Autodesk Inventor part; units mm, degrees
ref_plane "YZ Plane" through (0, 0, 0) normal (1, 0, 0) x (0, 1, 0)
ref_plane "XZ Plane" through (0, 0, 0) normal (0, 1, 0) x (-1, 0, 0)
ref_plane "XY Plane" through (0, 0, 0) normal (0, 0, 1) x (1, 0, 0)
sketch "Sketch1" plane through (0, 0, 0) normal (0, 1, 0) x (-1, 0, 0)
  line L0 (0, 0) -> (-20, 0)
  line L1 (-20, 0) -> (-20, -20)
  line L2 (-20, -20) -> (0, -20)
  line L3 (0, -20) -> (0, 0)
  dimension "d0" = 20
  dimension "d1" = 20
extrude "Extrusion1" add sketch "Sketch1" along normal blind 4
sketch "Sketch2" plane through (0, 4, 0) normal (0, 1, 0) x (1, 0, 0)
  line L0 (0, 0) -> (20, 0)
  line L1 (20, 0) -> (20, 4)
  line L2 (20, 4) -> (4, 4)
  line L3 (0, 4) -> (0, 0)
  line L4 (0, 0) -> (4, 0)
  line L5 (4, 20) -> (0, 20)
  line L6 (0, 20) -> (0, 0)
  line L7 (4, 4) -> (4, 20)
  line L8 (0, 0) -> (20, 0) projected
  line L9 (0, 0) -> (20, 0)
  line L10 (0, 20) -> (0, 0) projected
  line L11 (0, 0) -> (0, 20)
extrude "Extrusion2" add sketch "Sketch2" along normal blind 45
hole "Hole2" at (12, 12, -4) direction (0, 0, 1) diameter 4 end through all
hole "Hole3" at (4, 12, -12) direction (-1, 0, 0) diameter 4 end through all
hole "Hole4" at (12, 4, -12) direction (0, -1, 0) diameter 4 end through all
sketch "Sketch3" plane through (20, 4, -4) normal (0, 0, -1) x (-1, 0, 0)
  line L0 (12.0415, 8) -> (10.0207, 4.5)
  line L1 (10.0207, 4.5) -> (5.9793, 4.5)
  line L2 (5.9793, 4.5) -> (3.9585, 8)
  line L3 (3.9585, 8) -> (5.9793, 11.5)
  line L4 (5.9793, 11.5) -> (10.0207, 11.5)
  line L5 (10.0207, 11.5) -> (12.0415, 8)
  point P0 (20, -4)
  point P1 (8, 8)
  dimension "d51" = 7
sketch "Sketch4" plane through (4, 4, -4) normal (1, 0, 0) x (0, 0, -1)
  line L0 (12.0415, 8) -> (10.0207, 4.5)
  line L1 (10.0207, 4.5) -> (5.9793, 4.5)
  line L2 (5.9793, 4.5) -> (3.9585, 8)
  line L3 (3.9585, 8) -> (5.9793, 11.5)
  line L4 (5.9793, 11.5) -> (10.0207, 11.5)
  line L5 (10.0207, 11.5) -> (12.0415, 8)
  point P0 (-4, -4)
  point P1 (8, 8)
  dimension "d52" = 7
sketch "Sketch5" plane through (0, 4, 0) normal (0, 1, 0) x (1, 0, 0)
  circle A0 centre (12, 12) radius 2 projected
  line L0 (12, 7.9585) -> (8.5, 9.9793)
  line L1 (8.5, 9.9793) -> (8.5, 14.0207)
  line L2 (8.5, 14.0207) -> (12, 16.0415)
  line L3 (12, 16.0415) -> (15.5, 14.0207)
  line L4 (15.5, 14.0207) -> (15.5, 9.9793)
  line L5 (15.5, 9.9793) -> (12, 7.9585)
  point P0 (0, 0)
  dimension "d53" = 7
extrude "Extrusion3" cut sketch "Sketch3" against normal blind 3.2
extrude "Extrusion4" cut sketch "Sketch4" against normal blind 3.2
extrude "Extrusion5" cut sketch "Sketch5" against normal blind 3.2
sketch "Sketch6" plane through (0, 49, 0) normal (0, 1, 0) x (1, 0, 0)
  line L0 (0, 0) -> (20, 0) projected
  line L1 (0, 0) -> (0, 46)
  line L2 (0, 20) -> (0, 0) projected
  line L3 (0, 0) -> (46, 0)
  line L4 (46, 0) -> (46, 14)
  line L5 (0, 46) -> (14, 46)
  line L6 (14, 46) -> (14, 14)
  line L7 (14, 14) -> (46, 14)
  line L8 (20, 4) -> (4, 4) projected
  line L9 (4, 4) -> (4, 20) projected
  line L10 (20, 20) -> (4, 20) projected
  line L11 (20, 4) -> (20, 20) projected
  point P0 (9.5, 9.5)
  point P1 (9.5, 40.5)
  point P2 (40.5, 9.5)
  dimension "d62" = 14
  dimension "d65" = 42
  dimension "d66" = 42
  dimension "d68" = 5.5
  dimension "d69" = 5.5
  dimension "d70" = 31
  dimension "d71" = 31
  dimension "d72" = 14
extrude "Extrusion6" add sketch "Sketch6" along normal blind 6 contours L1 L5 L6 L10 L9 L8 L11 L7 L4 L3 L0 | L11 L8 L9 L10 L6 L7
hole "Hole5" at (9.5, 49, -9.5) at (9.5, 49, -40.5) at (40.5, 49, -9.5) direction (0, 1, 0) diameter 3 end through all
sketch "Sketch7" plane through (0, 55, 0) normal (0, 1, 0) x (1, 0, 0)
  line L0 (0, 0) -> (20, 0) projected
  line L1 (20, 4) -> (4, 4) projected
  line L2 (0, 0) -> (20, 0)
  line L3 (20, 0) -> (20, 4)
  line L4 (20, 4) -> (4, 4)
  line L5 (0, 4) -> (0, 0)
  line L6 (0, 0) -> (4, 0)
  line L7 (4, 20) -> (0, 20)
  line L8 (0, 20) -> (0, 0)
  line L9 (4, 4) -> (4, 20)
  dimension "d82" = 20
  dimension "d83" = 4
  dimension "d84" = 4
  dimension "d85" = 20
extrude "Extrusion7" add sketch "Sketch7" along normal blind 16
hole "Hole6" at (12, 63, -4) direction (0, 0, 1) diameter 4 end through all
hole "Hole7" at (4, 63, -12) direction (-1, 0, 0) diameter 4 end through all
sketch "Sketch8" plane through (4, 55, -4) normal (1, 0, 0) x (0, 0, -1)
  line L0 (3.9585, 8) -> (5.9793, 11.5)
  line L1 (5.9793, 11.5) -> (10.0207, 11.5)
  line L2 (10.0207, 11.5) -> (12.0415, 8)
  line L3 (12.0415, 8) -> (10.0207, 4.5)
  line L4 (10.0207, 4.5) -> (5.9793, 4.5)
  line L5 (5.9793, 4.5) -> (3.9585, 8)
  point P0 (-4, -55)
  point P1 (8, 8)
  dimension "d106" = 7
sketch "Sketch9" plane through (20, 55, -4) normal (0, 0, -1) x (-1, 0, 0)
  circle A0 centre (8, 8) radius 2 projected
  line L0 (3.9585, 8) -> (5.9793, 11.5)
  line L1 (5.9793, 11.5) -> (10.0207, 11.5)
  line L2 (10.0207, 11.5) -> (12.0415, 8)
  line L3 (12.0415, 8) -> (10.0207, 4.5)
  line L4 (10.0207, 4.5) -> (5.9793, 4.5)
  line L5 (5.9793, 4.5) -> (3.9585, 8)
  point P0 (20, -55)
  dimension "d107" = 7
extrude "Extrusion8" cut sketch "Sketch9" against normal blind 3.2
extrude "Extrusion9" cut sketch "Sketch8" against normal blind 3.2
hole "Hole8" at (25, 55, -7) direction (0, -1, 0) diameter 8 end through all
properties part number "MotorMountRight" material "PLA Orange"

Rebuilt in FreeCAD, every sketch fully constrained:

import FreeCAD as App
import Part
import Sketcher

V = App.Vector
Q = App.Units.Quantity


def add_polygon(sketch, points):
    """Adds a closed chain of lines whose ends are joined by coincident constraints."""
    first, n = sketch.GeometryCount, len(points)
    for a, b in zip(points, points[1:] + points[:1]):
        sketch.addGeometry(Part.LineSegment(App.Vector(*a, 0), App.Vector(*b, 0)), False)
    for i in range(n):
        sketch.addConstraint(Sketcher.Constraint("Coincident", first + i, 2, first + (i + 1) % n, 1))

doc = App.newDocument("Part")
body = doc.addObject("PartDesign::Body", "Body")

# Sketch on XZ plane
sketch1 = doc.addObject("Sketcher::SketchObject", "Sketch")
body.addObject(sketch1)
sketch1.AttachmentSupport = (doc.XZ_Plane, [""])
sketch1.MapMode = "FlatFace"
add_polygon(sketch1, [(0, -20), (0, 0), (20, 0), (20, -20)])  # lines 0-3
sketch1.addConstraint(Sketcher.Constraint("Vertical", 0))
sketch1.addConstraint(Sketcher.Constraint("Horizontal", 1))
sketch1.addConstraint(Sketcher.Constraint("Vertical", 2))
sketch1.addConstraint(Sketcher.Constraint("Horizontal", 3))
sketch1.addConstraint(Sketcher.Constraint("Coincident", 0, 2, -1, 1))
sketch1.addConstraint(Sketcher.Constraint("Equal", 3, 0))
sketch1.addConstraint(Sketcher.Constraint("DistanceX", 1, 1, 1, 2, Q("20 mm")))
pad1 = doc.addObject("PartDesign::Pad", "Pad")
body.addObject(pad1)
pad1.Profile = sketch1
pad1.Length = 4
pad1.Reversed = True

# Sketch on XZ plane
sketch2 = doc.addObject("Sketcher::SketchObject", "Sketch001")
body.addObject(sketch2)
sketch2.AttachmentSupport = (doc.XZ_Plane, [""])
sketch2.MapMode = "FlatFace"
sketch2.AttachmentOffset = App.Placement(V(0, 0, -4), App.Rotation())
add_polygon(sketch2, [(0, -20), (0, 0), (20, 0), (20, -4), (4, -4), (4, -20)])  # lines 0-5
sketch2.addConstraint(Sketcher.Constraint("Vertical", 0))
sketch2.addConstraint(Sketcher.Constraint("Horizontal", 1))
sketch2.addConstraint(Sketcher.Constraint("Vertical", 2))
sketch2.addConstraint(Sketcher.Constraint("Horizontal", 3))
sketch2.addConstraint(Sketcher.Constraint("Vertical", 4))
sketch2.addConstraint(Sketcher.Constraint("Horizontal", 5))
sketch2.addConstraint(Sketcher.Constraint("Coincident", 0, 2, -1, 1))
sketch2.addConstraint(Sketcher.Constraint("Equal", 1, 0))
sketch2.addConstraint(Sketcher.Constraint("Equal", 5, 2))
sketch2.addConstraint(Sketcher.Constraint("DistanceX", 1, 1, 1, 2, Q("20 mm")))
sketch2.addConstraint(Sketcher.Constraint("DistanceX", 3, 2, 3, 1, Q("16 mm")))
pad2 = doc.addObject("PartDesign::Pad", "Pad001")
body.addObject(pad2)
pad2.Profile = sketch2
pad2.Length = 45
pad2.Reversed = True

# Sketch on XY plane
sketch3 = doc.addObject("Sketcher::SketchObject", "Sketch002")
body.addObject(sketch3)
sketch3.AttachmentSupport = (doc.XY_Plane, [""])
sketch3.MapMode = "FlatFace"
sketch3.AttachmentOffset = App.Placement(V(0, 0, -4), App.Rotation())
sketch3.addGeometry(Part.Circle(V(12, 12, 0), V(0, 0, 1), 2), False)
sketch3.addConstraint(Sketcher.Constraint("Diameter", 0, Q("4 mm")))
sketch3.addConstraint(Sketcher.Constraint("DistanceX", -1, 1, 0, 3, Q("12 mm")))
sketch3.addConstraint(Sketcher.Constraint("DistanceY", -1, 1, 0, 3, Q("12 mm")))
doc.recompute()
hole = doc.addObject("PartDesign::Hole", "Hole")
body.addObject(hole)
hole.Profile = sketch3
hole.ThreadType = "None"
hole.Diameter = 4
hole.DepthType = "ThroughAll"
hole.Reversed = True

# Sketch on YZ plane
sketch4 = doc.addObject("Sketcher::SketchObject", "Sketch003")
body.addObject(sketch4)
sketch4.AttachmentSupport = (doc.YZ_Plane, [""])
sketch4.MapMode = "FlatFace"
sketch4.AttachmentOffset = App.Placement(V(0, 0, 4), App.Rotation())
sketch4.addGeometry(Part.Circle(V(12, -12, 0), V(0, 0, 1), 2), False)
sketch4.addConstraint(Sketcher.Constraint("Diameter", 0, Q("4 mm")))
sketch4.addConstraint(Sketcher.Constraint("DistanceX", -1, 1, 0, 3, Q("12 mm")))
sketch4.addConstraint(Sketcher.Constraint("DistanceY", 0, 3, -1, 1, Q("12 mm")))
doc.recompute()
hole2 = doc.addObject("PartDesign::Hole", "Hole001")
body.addObject(hole2)
hole2.Profile = sketch4
hole2.ThreadType = "None"
hole2.Diameter = 4
hole2.DepthType = "ThroughAll"

# Sketch on XZ plane
sketch5 = doc.addObject("Sketcher::SketchObject", "Sketch004")
body.addObject(sketch5)
sketch5.AttachmentSupport = (doc.XZ_Plane, [""])
sketch5.MapMode = "FlatFace"
sketch5.AttachmentOffset = App.Placement(V(0, 0, -4), App.Rotation())
sketch5.addGeometry(Part.Circle(V(12, -12, 0), V(0, 0, 1), 2), False)
sketch5.addConstraint(Sketcher.Constraint("Diameter", 0, Q("4 mm")))
sketch5.addConstraint(Sketcher.Constraint("DistanceX", -1, 1, 0, 3, Q("12 mm")))
sketch5.addConstraint(Sketcher.Constraint("DistanceY", 0, 3, -1, 1, Q("12 mm")))
doc.recompute()
hole3 = doc.addObject("PartDesign::Hole", "Hole002")
body.addObject(hole3)
hole3.Profile = sketch5
hole3.ThreadType = "None"
hole3.Diameter = 4
hole3.DepthType = "ThroughAll"
hole3.Reversed = True

# Sketch on XY plane
sketch6 = doc.addObject("Sketcher::SketchObject", "Sketch005")
body.addObject(sketch6)
sketch6.AttachmentSupport = (doc.XY_Plane, [""])
sketch6.MapMode = "FlatFace"
sketch6.AttachmentOffset = App.Placement(V(0, 0, -4), App.Rotation())
add_polygon(sketch6, [(10, 8.5), (8, 12), (10, 15.5), (14, 15.5), (16, 12), (14, 8.5)])  # lines 0-5
sketch6.addConstraint(Sketcher.Constraint("Horizontal", 2))
sketch6.addConstraint(Sketcher.Constraint("Horizontal", 5))
sketch6.addConstraint(Sketcher.Constraint("Parallel", 0, 3))
sketch6.addConstraint(Sketcher.Constraint("Parallel", 1, 4))
sketch6.addConstraint(Sketcher.Constraint("Horizontal", 0, 2, 3, 2))
sketch6.addConstraint(Sketcher.Constraint("Vertical", 2, 2, 4, 2))
sketch6.addConstraint(Sketcher.Constraint("Vertical", 1, 2, 5, 2))
sketch6.addConstraint(Sketcher.Constraint("DistanceY", 4, 2, 2, 2, Q("7 mm")))
sketch6.addConstraint(Sketcher.Constraint("Angle", 0, Q("120.001 deg")))
sketch6.addConstraint(Sketcher.Constraint("DistanceY", -1, 1, 0, 2, Q("12 mm")))
sketch6.addConstraint(Sketcher.Constraint("DistanceX", 2, 1, 2, 2, Q("4.0414 mm")))
sketch6.addConstraint(Sketcher.Constraint("DistanceX", -1, 1, 0, 2, Q("7.9585 mm")))
pocket1 = doc.addObject("PartDesign::Pocket", "Pocket")
body.addObject(pocket1)
pocket1.Profile = sketch6
pocket1.Length = 3.2
pocket1.Reversed = True

# Sketch on YZ plane
sketch7 = doc.addObject("Sketcher::SketchObject", "Sketch006")
body.addObject(sketch7)
sketch7.AttachmentSupport = (doc.YZ_Plane, [""])
sketch7.MapMode = "FlatFace"
sketch7.AttachmentOffset = App.Placement(V(0, 0, 4), App.Rotation())
add_polygon(sketch7, [(8.5, -14), (12, -16), (15.5, -14), (15.5, -10), (12, -8), (8.5, -10)])  # lines 0-5
sketch7.addConstraint(Sketcher.Constraint("Vertical", 2))
sketch7.addConstraint(Sketcher.Constraint("Vertical", 5))
sketch7.addConstraint(Sketcher.Constraint("Parallel", 0, 3))
sketch7.addConstraint(Sketcher.Constraint("Parallel", 1, 4))
sketch7.addConstraint(Sketcher.Constraint("Horizontal", 2, 2, 4, 2))
sketch7.addConstraint(Sketcher.Constraint("Horizontal", 1, 2, 5, 2))
sketch7.addConstraint(Sketcher.Constraint("Vertical", 0, 2, 3, 2))
sketch7.addConstraint(Sketcher.Constraint("DistanceX", 4, 2, 2, 2, Q("7 mm")))
sketch7.addConstraint(Sketcher.Constraint("Angle", 0, Q("-30.001 deg")))
sketch7.addConstraint(Sketcher.Constraint("DistanceX", -1, 1, 0, 2, Q("12 mm")))
sketch7.addConstraint(Sketcher.Constraint("DistanceY", 2, 1, 2, 2, Q("4.0414 mm")))
sketch7.addConstraint(Sketcher.Constraint("DistanceY", 0, 2, -1, 1, Q("16.0415 mm")))
pocket2 = doc.addObject("PartDesign::Pocket", "Pocket001")
body.addObject(pocket2)
pocket2.Profile = sketch7
pocket2.Length = 3.2

# Sketch on XZ plane
sketch8 = doc.addObject("Sketcher::SketchObject", "Sketch007")
body.addObject(sketch8)
sketch8.AttachmentSupport = (doc.XZ_Plane, [""])
sketch8.MapMode = "FlatFace"
sketch8.AttachmentOffset = App.Placement(V(0, 0, -4), App.Rotation())
add_polygon(sketch8, [(8.5, -10), (12, -8), (15.5, -10), (15.5, -14), (12, -16), (8.5, -14)])  # lines 0-5
sketch8.addGeometry(Part.Circle(V(12, -12, 0), V(0, 0, 1), 2), False)  # 6
sketch8.addConstraint(Sketcher.Constraint("Vertical", 2))
sketch8.addConstraint(Sketcher.Constraint("Vertical", 5))
sketch8.addConstraint(Sketcher.Constraint("Parallel", 0, 3))
sketch8.addConstraint(Sketcher.Constraint("Parallel", 1, 4))
sketch8.addConstraint(Sketcher.Constraint("Horizontal", 2, 2, 4, 2))
sketch8.addConstraint(Sketcher.Constraint("Horizontal", 1, 2, 5, 2))
sketch8.addConstraint(Sketcher.Constraint("Vertical", 6, 3, 0, 2))
sketch8.addConstraint(Sketcher.Constraint("Vertical", 0, 2, 3, 2))
sketch8.addConstraint(Sketcher.Constraint("Diameter", 6, Q("4 mm")))
sketch8.addConstraint(Sketcher.Constraint("DistanceX", 4, 2, 2, 2, Q("7 mm")))
sketch8.addConstraint(Sketcher.Constraint("Angle", 0, Q("30.001 deg")))
sketch8.addConstraint(Sketcher.Constraint("DistanceX", -1, 1, 6, 3, Q("12 mm")))
sketch8.addConstraint(Sketcher.Constraint("DistanceY", 6, 3, -1, 1, Q("12 mm")))
sketch8.addConstraint(Sketcher.Constraint("DistanceY", 2, 2, 2, 1, Q("4.0414 mm")))
sketch8.addConstraint(Sketcher.Constraint("DistanceY", 0, 2, -1, 1, Q("7.9585 mm")))
pocket3 = doc.addObject("PartDesign::Pocket", "Pocket002")
body.addObject(pocket3)
pocket3.Profile = sketch8
pocket3.Length = 3.2
pocket3.Reversed = True

# Sketch on XZ plane
sketch9 = doc.addObject("Sketcher::SketchObject", "Sketch008")
body.addObject(sketch9)
sketch9.AttachmentSupport = (doc.XZ_Plane, [""])
sketch9.MapMode = "FlatFace"
sketch9.AttachmentOffset = App.Placement(V(0, 0, -49), App.Rotation())
add_polygon(sketch9, [(0, 0), (46, 0), (46, -14), (14, -14), (14, -46), (0, -46)])  # lines 0-5
sketch9.addConstraint(Sketcher.Constraint("Horizontal", 0))
sketch9.addConstraint(Sketcher.Constraint("Vertical", 1))
sketch9.addConstraint(Sketcher.Constraint("Horizontal", 2))
sketch9.addConstraint(Sketcher.Constraint("Vertical", 3))
sketch9.addConstraint(Sketcher.Constraint("Horizontal", 4))
sketch9.addConstraint(Sketcher.Constraint("Vertical", 5))
sketch9.addConstraint(Sketcher.Constraint("Coincident", 5, 2, -1, 1))
sketch9.addConstraint(Sketcher.Constraint("Equal", 4, 1))
sketch9.addConstraint(Sketcher.Constraint("Equal", 2, 3))
sketch9.addConstraint(Sketcher.Constraint("DistanceX", 4, 2, 4, 1, Q("14 mm")))
sketch9.addConstraint(Sketcher.Constraint("DistanceX", 0, 1, 0, 2, Q("46 mm")))
pad3 = doc.addObject("PartDesign::Pad", "Pad002")
body.addObject(pad3)
pad3.Profile = sketch9
pad3.Length = 6
pad3.Reversed = True

# Sketch on XZ plane
sketch10 = doc.addObject("Sketcher::SketchObject", "Sketch009")
body.addObject(sketch10)
sketch10.AttachmentSupport = (doc.XZ_Plane, [""])
sketch10.MapMode = "FlatFace"
sketch10.AttachmentOffset = App.Placement(V(0, 0, -49), App.Rotation())
sketch10.addGeometry(Part.Circle(V(9.5, -9.5, 0), V(0, 0, 1), 1.5), False)
sketch10.addGeometry(Part.Circle(V(9.5, -40.5, 0), V(0, 0, 1), 1.5), False)
sketch10.addGeometry(Part.Circle(V(40.5, -9.5, 0), V(0, 0, 1), 1.5), False)
sketch10.addConstraint(Sketcher.Constraint("Equal", 0, 1))
sketch10.addConstraint(Sketcher.Constraint("Equal", 1, 2))
sketch10.addConstraint(Sketcher.Constraint("Horizontal", 0, 3, 2, 3))
sketch10.addConstraint(Sketcher.Constraint("Vertical", 0, 3, 1, 3))
sketch10.addConstraint(Sketcher.Constraint("Diameter", 0, Q("3 mm")))
sketch10.addConstraint(Sketcher.Constraint("DistanceY", 1, 3, 0, 3, Q("31 mm")))
sketch10.addConstraint(Sketcher.Constraint("DistanceX", 0, 3, 2, 3, Q("31 mm")))
sketch10.addConstraint(Sketcher.Constraint("DistanceX", -1, 1, 0, 3, Q("9.5 mm")))
sketch10.addConstraint(Sketcher.Constraint("DistanceY", 0, 3, -1, 1, Q("9.5 mm")))
doc.recompute()
hole4 = doc.addObject("PartDesign::Hole", "Hole003")
body.addObject(hole4)
hole4.Profile = sketch10
hole4.ThreadType = "None"
hole4.Diameter = 3
hole4.DepthType = "ThroughAll"

# Sketch on XZ plane
sketch11 = doc.addObject("Sketcher::SketchObject", "Sketch010")
body.addObject(sketch11)
sketch11.AttachmentSupport = (doc.XZ_Plane, [""])
sketch11.MapMode = "FlatFace"
sketch11.AttachmentOffset = App.Placement(V(0, 0, -55), App.Rotation())
add_polygon(sketch11, [(0, -20), (0, 0), (20, 0), (20, -4), (4, -4), (4, -20)])  # lines 0-5
sketch11.addConstraint(Sketcher.Constraint("Vertical", 0))
sketch11.addConstraint(Sketcher.Constraint("Horizontal", 1))
sketch11.addConstraint(Sketcher.Constraint("Vertical", 2))
sketch11.addConstraint(Sketcher.Constraint("Horizontal", 3))
sketch11.addConstraint(Sketcher.Constraint("Vertical", 4))
sketch11.addConstraint(Sketcher.Constraint("Horizontal", 5))
sketch11.addConstraint(Sketcher.Constraint("Coincident", 0, 2, -1, 1))
sketch11.addConstraint(Sketcher.Constraint("Equal", 1, 0))
sketch11.addConstraint(Sketcher.Constraint("Equal", 5, 2))
sketch11.addConstraint(Sketcher.Constraint("DistanceX", 1, 1, 1, 2, Q("20 mm")))
sketch11.addConstraint(Sketcher.Constraint("DistanceX", 5, 2, 5, 1, Q("4 mm")))
pad4 = doc.addObject("PartDesign::Pad", "Pad003")
body.addObject(pad4)
pad4.Profile = sketch11
pad4.Length = 16
pad4.Reversed = True

# Sketch on XY plane
sketch12 = doc.addObject("Sketcher::SketchObject", "Sketch011")
body.addObject(sketch12)
sketch12.AttachmentSupport = (doc.XY_Plane, [""])
sketch12.MapMode = "FlatFace"
sketch12.AttachmentOffset = App.Placement(V(0, 0, -4), App.Rotation())
sketch12.addGeometry(Part.Circle(V(12, 63, 0), V(0, 0, 1), 2), False)
sketch12.addConstraint(Sketcher.Constraint("Diameter", 0, Q("4 mm")))
sketch12.addConstraint(Sketcher.Constraint("DistanceX", -1, 1, 0, 3, Q("12 mm")))
sketch12.addConstraint(Sketcher.Constraint("DistanceY", -1, 1, 0, 3, Q("63 mm")))
doc.recompute()
hole5 = doc.addObject("PartDesign::Hole", "Hole004")
body.addObject(hole5)
hole5.Profile = sketch12
hole5.ThreadType = "None"
hole5.Diameter = 4
hole5.DepthType = "ThroughAll"
hole5.Reversed = True

# Sketch on YZ plane
sketch13 = doc.addObject("Sketcher::SketchObject", "Sketch012")
body.addObject(sketch13)
sketch13.AttachmentSupport = (doc.YZ_Plane, [""])
sketch13.MapMode = "FlatFace"
sketch13.AttachmentOffset = App.Placement(V(0, 0, 4), App.Rotation())
sketch13.addGeometry(Part.Circle(V(63, -12, 0), V(0, 0, 1), 2), False)
sketch13.addConstraint(Sketcher.Constraint("Diameter", 0, Q("4 mm")))
sketch13.addConstraint(Sketcher.Constraint("DistanceX", -1, 1, 0, 3, Q("63 mm")))
sketch13.addConstraint(Sketcher.Constraint("DistanceY", 0, 3, -1, 1, Q("12 mm")))
doc.recompute()
hole6 = doc.addObject("PartDesign::Hole", "Hole005")
body.addObject(hole6)
hole6.Profile = sketch13
hole6.ThreadType = "None"
hole6.Diameter = 4
hole6.DepthType = "ThroughAll"

# Sketch on XY plane
sketch14 = doc.addObject("Sketcher::SketchObject", "Sketch013")
body.addObject(sketch14)
sketch14.AttachmentSupport = (doc.XY_Plane, [""])
sketch14.MapMode = "FlatFace"
sketch14.AttachmentOffset = App.Placement(V(0, 0, -4), App.Rotation())
add_polygon(sketch14, [(14, 66.5), (16, 63), (14, 59.5), (10, 59.5), (8, 63), (10, 66.5)])  # lines 0-5
sketch14.addGeometry(Part.Circle(V(12, 63, 0), V(0, 0, 1), 2), False)  # 6
sketch14.addConstraint(Sketcher.Constraint("Horizontal", 2))
sketch14.addConstraint(Sketcher.Constraint("Horizontal", 5))
sketch14.addConstraint(Sketcher.Constraint("Parallel", 0, 3))
sketch14.addConstraint(Sketcher.Constraint("Parallel", 1, 4))
sketch14.addConstraint(Sketcher.Constraint("Horizontal", 6, 3, 0, 2))
sketch14.addConstraint(Sketcher.Constraint("Horizontal", 0, 2, 3, 2))
sketch14.addConstraint(Sketcher.Constraint("Vertical", 2, 2, 4, 2))
sketch14.addConstraint(Sketcher.Constraint("Vertical", 1, 2, 5, 2))
sketch14.addConstraint(Sketcher.Constraint("Diameter", 6, Q("4 mm")))
sketch14.addConstraint(Sketcher.Constraint("DistanceY", 2, 2, 4, 2, Q("7 mm")))
sketch14.addConstraint(Sketcher.Constraint("Angle", 0, Q("-59.999 deg")))
sketch14.addConstraint(Sketcher.Constraint("DistanceX", -1, 1, 6, 3, Q("12 mm")))
sketch14.addConstraint(Sketcher.Constraint("DistanceY", -1, 1, 6, 3, Q("63 mm")))
sketch14.addConstraint(Sketcher.Constraint("DistanceX", 2, 2, 2, 1, Q("4.0414 mm")))
sketch14.addConstraint(Sketcher.Constraint("DistanceX", -1, 1, 0, 2, Q("16.0415 mm")))
pocket4 = doc.addObject("PartDesign::Pocket", "Pocket003")
body.addObject(pocket4)
pocket4.Profile = sketch14
pocket4.Length = 3.2
pocket4.Reversed = True

# Sketch on YZ plane
sketch15 = doc.addObject("Sketcher::SketchObject", "Sketch014")
body.addObject(sketch15)
sketch15.AttachmentSupport = (doc.YZ_Plane, [""])
sketch15.MapMode = "FlatFace"
sketch15.AttachmentOffset = App.Placement(V(0, 0, 4), App.Rotation())
add_polygon(sketch15, [(66.5, -10), (63, -8), (59.5, -10), (59.5, -14), (63, -16), (66.5, -14)])  # lines 0-5
sketch15.addConstraint(Sketcher.Constraint("Vertical", 2))
sketch15.addConstraint(Sketcher.Constraint("Vertical", 5))
sketch15.addConstraint(Sketcher.Constraint("Parallel", 0, 3))
sketch15.addConstraint(Sketcher.Constraint("Parallel", 1, 4))
sketch15.addConstraint(Sketcher.Constraint("Horizontal", 2, 2, 4, 2))
sketch15.addConstraint(Sketcher.Constraint("Horizontal", 1, 2, 5, 2))
sketch15.addConstraint(Sketcher.Constraint("Vertical", 0, 2, 3, 2))
sketch15.addConstraint(Sketcher.Constraint("DistanceX", 2, 2, 4, 2, Q("7 mm")))
sketch15.addConstraint(Sketcher.Constraint("Angle", 0, Q("149.999 deg")))
sketch15.addConstraint(Sketcher.Constraint("DistanceX", -1, 1, 0, 2, Q("63 mm")))
sketch15.addConstraint(Sketcher.Constraint("DistanceY", 2, 2, 2, 1, Q("4.0414 mm")))
sketch15.addConstraint(Sketcher.Constraint("DistanceY", 0, 2, -1, 1, Q("7.9585 mm")))
pocket5 = doc.addObject("PartDesign::Pocket", "Pocket004")
body.addObject(pocket5)
pocket5.Profile = sketch15
pocket5.Length = 3.2

# Sketch on XZ plane
sketch16 = doc.addObject("Sketcher::SketchObject", "Sketch015")
body.addObject(sketch16)
sketch16.AttachmentSupport = (doc.XZ_Plane, [""])
sketch16.MapMode = "FlatFace"
sketch16.AttachmentOffset = App.Placement(V(0, 0, -55), App.Rotation())
sketch16.addGeometry(Part.Circle(V(25, -7, 0), V(0, 0, 1), 4), False)
sketch16.addConstraint(Sketcher.Constraint("Diameter", 0, Q("8 mm")))
sketch16.addConstraint(Sketcher.Constraint("DistanceX", -1, 1, 0, 3, Q("25 mm")))
sketch16.addConstraint(Sketcher.Constraint("DistanceY", 0, 3, -1, 1, Q("7 mm")))
doc.recompute()
hole7 = doc.addObject("PartDesign::Hole", "Hole006")
body.addObject(hole7)
hole7.Profile = sketch16
hole7.ThreadType = "None"
hole7.Diameter = 8
hole7.DepthType = "ThroughAll"
hole7.Reversed = True

doc.recompute()
